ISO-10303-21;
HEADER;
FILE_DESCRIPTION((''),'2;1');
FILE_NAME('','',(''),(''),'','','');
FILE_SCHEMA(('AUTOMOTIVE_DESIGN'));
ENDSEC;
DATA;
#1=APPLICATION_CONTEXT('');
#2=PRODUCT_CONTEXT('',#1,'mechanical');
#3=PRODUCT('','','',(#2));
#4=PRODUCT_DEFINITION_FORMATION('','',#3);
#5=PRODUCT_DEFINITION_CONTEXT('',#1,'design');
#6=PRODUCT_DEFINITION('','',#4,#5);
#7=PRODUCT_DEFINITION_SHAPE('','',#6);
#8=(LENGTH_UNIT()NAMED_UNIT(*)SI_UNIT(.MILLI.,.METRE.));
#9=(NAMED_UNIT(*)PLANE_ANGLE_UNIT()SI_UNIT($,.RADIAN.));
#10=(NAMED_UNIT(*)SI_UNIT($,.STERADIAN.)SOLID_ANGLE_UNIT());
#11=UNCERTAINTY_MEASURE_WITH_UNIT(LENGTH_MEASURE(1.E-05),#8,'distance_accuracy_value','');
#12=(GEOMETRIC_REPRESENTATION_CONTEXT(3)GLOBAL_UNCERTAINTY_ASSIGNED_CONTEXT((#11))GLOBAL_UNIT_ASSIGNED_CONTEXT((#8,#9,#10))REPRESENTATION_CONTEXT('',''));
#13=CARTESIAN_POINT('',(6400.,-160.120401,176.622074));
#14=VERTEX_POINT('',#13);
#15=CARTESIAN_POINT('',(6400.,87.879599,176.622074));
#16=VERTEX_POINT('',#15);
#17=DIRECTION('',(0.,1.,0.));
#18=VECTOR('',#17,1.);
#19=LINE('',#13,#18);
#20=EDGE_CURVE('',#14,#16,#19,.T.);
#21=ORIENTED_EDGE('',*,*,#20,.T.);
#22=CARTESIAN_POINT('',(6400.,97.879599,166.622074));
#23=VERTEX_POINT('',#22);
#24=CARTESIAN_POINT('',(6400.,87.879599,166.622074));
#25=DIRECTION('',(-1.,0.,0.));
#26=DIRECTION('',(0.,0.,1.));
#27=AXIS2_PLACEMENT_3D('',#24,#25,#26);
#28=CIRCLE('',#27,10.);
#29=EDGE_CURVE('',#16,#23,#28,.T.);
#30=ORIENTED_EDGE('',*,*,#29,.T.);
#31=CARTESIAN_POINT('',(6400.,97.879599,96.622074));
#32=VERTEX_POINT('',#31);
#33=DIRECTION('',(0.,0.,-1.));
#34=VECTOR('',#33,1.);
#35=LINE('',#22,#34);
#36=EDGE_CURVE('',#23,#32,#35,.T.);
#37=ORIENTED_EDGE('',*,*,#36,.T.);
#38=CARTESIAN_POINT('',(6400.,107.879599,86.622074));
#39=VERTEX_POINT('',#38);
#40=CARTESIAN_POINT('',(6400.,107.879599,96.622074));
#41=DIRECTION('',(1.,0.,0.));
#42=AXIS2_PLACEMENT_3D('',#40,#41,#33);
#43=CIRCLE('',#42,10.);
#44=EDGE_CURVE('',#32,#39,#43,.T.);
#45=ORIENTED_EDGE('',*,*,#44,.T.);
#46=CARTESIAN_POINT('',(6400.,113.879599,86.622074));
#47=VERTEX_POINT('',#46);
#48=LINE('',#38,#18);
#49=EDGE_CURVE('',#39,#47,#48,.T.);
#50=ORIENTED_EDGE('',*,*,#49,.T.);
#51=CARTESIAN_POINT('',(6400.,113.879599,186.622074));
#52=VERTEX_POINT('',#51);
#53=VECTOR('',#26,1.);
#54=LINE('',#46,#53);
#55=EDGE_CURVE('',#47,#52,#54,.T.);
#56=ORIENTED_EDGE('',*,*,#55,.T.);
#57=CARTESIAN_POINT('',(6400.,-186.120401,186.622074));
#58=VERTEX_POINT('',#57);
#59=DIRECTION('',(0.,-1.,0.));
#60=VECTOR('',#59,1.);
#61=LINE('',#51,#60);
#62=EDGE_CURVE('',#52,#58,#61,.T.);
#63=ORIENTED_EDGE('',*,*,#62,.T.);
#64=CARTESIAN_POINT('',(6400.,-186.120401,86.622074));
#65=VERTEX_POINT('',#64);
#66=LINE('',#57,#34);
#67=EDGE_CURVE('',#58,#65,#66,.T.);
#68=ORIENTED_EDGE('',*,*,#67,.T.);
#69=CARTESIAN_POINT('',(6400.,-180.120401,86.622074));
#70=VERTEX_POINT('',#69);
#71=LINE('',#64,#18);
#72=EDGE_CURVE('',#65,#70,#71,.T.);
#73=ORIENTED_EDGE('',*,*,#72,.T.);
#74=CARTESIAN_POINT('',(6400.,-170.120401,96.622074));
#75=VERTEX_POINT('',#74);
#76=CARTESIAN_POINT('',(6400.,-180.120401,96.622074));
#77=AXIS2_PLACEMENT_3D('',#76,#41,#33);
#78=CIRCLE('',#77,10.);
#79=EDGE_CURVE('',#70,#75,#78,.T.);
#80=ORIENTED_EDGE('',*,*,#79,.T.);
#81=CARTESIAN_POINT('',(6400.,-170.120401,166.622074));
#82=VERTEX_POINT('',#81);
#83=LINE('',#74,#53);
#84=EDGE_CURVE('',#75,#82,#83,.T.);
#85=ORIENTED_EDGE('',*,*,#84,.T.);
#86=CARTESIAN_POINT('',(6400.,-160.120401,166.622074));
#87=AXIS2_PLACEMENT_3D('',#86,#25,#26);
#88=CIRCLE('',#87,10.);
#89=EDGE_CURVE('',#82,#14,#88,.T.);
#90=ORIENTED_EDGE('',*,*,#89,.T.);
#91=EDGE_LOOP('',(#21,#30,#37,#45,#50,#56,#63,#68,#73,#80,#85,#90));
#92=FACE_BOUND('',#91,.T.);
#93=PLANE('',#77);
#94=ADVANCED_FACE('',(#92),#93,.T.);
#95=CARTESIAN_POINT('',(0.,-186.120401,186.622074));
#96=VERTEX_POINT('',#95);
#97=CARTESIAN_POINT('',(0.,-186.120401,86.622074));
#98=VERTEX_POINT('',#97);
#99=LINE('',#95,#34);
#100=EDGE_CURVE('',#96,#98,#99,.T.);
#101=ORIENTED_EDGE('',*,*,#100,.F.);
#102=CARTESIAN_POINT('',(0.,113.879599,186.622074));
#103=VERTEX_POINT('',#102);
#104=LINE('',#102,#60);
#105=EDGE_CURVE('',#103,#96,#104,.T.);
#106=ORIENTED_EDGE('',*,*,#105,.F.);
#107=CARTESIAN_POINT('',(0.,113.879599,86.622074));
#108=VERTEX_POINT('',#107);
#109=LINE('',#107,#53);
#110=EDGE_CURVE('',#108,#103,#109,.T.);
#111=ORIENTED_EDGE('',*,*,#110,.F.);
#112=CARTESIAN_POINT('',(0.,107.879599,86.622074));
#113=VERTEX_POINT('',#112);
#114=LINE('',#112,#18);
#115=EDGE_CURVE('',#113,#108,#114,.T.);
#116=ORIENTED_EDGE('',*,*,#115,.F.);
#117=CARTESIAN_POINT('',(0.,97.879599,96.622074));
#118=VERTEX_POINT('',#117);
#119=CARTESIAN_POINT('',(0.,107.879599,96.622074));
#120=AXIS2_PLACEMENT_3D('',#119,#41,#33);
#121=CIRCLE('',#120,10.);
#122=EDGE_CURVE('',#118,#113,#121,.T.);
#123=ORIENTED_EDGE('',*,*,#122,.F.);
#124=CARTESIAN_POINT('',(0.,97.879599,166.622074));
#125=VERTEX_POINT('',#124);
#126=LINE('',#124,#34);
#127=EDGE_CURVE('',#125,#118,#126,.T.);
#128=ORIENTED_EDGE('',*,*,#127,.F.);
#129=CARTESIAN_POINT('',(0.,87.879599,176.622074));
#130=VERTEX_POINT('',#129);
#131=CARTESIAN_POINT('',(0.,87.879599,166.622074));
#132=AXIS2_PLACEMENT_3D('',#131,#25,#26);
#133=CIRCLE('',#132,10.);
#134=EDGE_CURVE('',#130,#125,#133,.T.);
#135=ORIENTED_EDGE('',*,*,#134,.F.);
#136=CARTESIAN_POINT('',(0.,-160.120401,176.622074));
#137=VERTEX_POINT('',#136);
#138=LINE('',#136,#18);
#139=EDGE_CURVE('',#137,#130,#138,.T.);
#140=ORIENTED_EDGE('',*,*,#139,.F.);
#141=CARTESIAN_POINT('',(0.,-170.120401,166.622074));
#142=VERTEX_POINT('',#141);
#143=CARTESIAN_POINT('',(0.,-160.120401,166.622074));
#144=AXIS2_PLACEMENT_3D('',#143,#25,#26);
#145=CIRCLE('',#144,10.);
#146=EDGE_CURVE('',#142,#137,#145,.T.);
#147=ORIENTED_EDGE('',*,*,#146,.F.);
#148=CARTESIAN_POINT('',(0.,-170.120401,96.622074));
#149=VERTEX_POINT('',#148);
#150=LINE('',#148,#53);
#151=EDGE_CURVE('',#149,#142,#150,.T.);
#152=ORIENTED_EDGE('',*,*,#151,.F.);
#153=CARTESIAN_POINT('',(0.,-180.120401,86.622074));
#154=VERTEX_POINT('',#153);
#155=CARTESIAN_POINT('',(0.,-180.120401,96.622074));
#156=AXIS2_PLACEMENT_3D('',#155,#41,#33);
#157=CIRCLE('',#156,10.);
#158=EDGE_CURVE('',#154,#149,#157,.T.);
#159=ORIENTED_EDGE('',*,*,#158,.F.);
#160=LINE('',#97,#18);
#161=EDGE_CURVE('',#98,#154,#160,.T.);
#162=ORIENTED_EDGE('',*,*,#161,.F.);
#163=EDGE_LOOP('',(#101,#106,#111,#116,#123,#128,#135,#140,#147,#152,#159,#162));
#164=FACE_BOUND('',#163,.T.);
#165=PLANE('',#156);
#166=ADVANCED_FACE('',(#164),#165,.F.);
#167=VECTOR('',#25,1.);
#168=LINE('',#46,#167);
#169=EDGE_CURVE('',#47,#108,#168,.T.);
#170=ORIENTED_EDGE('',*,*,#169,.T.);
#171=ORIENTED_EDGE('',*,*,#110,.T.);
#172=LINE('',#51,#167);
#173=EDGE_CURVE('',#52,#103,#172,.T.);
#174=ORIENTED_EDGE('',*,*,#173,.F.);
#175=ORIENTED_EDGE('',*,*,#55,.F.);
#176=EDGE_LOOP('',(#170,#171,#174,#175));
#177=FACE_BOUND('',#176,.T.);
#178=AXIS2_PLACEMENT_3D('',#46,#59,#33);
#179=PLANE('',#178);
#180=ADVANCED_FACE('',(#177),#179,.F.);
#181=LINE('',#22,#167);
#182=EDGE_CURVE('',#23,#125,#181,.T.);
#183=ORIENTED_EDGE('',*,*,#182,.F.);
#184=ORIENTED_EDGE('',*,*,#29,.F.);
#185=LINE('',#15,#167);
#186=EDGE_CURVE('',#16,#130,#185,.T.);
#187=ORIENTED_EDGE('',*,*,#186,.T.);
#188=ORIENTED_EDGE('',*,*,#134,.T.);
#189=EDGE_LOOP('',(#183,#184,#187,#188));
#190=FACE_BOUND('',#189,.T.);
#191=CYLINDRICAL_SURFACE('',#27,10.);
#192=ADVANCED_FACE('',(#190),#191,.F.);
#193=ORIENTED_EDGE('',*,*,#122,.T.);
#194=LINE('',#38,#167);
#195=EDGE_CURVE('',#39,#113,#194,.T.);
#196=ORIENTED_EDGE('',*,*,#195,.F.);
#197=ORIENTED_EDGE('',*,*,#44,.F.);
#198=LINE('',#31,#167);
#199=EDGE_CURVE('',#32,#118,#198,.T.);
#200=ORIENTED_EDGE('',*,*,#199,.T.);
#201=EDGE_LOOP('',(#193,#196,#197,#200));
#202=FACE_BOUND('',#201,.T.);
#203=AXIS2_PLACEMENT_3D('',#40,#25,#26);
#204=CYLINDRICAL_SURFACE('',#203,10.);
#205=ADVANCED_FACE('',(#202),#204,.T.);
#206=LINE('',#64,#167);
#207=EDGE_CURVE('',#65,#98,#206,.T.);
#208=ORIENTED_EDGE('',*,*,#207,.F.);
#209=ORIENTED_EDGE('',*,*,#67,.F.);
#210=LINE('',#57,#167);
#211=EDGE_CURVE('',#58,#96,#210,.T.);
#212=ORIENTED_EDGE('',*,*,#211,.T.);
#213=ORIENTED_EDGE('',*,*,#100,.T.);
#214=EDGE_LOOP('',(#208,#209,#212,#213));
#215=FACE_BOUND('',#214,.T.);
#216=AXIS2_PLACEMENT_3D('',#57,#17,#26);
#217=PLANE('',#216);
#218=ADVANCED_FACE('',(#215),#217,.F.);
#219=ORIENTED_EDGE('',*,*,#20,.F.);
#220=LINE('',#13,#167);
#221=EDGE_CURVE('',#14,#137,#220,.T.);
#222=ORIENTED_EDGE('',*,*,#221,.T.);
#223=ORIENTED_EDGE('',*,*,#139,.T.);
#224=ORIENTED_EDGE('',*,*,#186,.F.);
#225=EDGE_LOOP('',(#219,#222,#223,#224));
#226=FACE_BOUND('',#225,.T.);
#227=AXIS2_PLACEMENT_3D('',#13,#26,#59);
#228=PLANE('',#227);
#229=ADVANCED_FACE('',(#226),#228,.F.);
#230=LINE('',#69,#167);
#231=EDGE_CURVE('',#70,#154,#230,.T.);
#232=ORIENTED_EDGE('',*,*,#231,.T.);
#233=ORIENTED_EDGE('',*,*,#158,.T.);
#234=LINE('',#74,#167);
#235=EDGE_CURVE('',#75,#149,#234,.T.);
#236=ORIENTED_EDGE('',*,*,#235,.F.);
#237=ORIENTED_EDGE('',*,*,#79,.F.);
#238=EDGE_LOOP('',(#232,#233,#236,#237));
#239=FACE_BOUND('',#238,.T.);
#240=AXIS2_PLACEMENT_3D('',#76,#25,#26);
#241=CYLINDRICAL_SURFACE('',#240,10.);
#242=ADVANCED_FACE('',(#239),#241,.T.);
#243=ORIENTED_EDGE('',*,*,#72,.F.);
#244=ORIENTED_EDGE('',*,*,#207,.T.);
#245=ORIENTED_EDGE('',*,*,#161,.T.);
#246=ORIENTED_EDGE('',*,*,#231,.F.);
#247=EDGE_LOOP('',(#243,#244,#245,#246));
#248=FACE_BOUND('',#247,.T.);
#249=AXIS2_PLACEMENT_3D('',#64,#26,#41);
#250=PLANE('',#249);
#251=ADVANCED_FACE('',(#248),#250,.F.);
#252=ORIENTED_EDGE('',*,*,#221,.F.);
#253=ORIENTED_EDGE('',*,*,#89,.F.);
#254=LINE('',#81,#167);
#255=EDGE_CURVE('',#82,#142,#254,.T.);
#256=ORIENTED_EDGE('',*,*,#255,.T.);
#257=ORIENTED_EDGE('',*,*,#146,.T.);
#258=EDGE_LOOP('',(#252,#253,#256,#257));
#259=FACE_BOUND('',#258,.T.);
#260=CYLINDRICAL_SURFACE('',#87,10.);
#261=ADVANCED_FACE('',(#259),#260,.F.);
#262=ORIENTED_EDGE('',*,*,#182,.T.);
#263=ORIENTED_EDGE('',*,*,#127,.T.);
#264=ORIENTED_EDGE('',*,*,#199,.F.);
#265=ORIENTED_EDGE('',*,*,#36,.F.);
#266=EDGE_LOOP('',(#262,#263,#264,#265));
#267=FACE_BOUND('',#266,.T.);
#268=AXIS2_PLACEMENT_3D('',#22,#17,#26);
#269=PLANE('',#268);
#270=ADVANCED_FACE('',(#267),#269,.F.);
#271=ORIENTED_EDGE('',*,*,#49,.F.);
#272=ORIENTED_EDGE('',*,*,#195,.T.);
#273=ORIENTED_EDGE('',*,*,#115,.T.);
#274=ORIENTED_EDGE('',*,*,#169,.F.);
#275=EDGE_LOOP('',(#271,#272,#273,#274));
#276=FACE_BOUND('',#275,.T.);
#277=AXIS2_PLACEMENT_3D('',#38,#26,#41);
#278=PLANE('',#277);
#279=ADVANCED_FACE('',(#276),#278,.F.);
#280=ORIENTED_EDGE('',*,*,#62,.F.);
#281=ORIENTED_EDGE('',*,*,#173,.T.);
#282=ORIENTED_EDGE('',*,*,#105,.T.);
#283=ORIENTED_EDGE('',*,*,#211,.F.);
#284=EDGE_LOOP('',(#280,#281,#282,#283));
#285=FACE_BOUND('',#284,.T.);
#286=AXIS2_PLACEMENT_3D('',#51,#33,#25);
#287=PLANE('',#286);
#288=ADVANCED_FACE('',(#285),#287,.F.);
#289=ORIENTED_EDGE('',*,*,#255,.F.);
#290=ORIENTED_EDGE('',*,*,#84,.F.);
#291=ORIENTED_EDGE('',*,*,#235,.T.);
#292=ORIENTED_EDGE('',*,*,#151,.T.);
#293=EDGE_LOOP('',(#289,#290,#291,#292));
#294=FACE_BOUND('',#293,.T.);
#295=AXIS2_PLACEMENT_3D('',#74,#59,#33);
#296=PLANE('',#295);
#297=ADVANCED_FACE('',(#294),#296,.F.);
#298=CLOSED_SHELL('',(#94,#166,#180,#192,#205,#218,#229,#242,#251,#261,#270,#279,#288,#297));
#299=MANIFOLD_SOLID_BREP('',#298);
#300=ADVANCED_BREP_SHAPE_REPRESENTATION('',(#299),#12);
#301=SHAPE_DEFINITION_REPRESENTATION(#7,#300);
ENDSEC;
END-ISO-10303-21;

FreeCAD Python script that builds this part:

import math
import FreeCAD as App
import Part
import Sketcher
from FreeCAD import Vector
Q = App.Units.Quantity

doc = App.newDocument("Part")
body = doc.addObject("PartDesign::Body", "Body")

# Sketch on YZ plane
sketch1 = doc.addObject("Sketcher::SketchObject", "Sketch")
body.addObject(sketch1)
sketch1.AttachmentSupport = (doc.YZ_Plane, [""])
sketch1.MapMode = "FlatFace"
sketch1.addGeometry(Part.LineSegment(Vector(114, 87, 0), Vector(114, 187, 0)), False)
sketch1.addGeometry(Part.LineSegment(Vector(114, 187, 0), Vector(-186, 187, 0)), False)
sketch1.addGeometry(Part.LineSegment(Vector(-186, 187, 0), Vector(-186, 87, 0)), False)
sketch1.addGeometry(Part.LineSegment(Vector(-186, 87, 0), Vector(-180, 87, 0)), False)
sketch1.addGeometry(Part.ArcOfCircle(Part.Circle(Vector(-180, 97, 0), Vector(0, 0, 1), 10), math.radians(-90), math.radians(0)), False)
sketch1.addGeometry(Part.LineSegment(Vector(-170, 97, 0), Vector(-170, 167, 0)), False)
sketch1.addGeometry(Part.ArcOfCircle(Part.Circle(Vector(-160, 167, 0), Vector(0, 0, 1), 10), math.radians(90), math.radians(180)), False)
sketch1.addGeometry(Part.LineSegment(Vector(-160, 177, 0), Vector(88, 177, 0)), False)
sketch1.addGeometry(Part.ArcOfCircle(Part.Circle(Vector(88, 167, 0), Vector(0, 0, 1), 10), math.radians(0), math.radians(90)), False)
sketch1.addGeometry(Part.LineSegment(Vector(98, 167, 0), Vector(98, 97, 0)), False)
sketch1.addGeometry(Part.ArcOfCircle(Part.Circle(Vector(108, 97, 0), Vector(0, 0, 1), 10), math.radians(180), math.radians(270)), False)
sketch1.addGeometry(Part.LineSegment(Vector(108, 87, 0), Vector(114, 87, 0)), False)
sketch1.addConstraint(Sketcher.Constraint("Coincident", 0, 2, 1, 1))
sketch1.addConstraint(Sketcher.Constraint("Coincident", 1, 2, 2, 1))
sketch1.addConstraint(Sketcher.Constraint("Coincident", 2, 2, 3, 1))
sketch1.addConstraint(Sketcher.Constraint("Tangent", 3, 2, 4, 1))
sketch1.addConstraint(Sketcher.Constraint("Tangent", 4, 2, 5, 1))
sketch1.addConstraint(Sketcher.Constraint("Tangent", 5, 2, 6, 2))
sketch1.addConstraint(Sketcher.Constraint("Tangent", 6, 1, 7, 1))
sketch1.addConstraint(Sketcher.Constraint("Tangent", 7, 2, 8, 2))
sketch1.addConstraint(Sketcher.Constraint("Tangent", 8, 1, 9, 1))
sketch1.addConstraint(Sketcher.Constraint("Tangent", 9, 2, 10, 1))
sketch1.addConstraint(Sketcher.Constraint("Tangent", 10, 2, 11, 1))
sketch1.addConstraint(Sketcher.Constraint("Coincident", 11, 2, 0, 1))
sketch1.addConstraint(Sketcher.Constraint("Vertical", 0))
sketch1.addConstraint(Sketcher.Constraint("Horizontal", 1))
sketch1.addConstraint(Sketcher.Constraint("Vertical", 2))
sketch1.addConstraint(Sketcher.Constraint("Horizontal", 3))
sketch1.addConstraint(Sketcher.Constraint("Vertical", 5))
sketch1.addConstraint(Sketcher.Constraint("Horizontal", 7))
sketch1.addConstraint(Sketcher.Constraint("Vertical", 9))
sketch1.addConstraint(Sketcher.Constraint("Horizontal", 11))
sketch1.addConstraint(Sketcher.Constraint("Equal", 4, 6))
sketch1.addConstraint(Sketcher.Constraint("Equal", 6, 8))
sketch1.addConstraint(Sketcher.Constraint("Equal", 8, 10))
sketch1.addConstraint(Sketcher.Constraint("Horizontal", 4, 3, 10, 3))
sketch1.addConstraint(Sketcher.Constraint("Equal", 3, 11))
sketch1.addConstraint(Sketcher.Constraint("Radius", 4, Q("10 mm")))
sketch1.addConstraint(Sketcher.Constraint("DistanceX", 1, 2, 1, 1, Q("300 mm")))
sketch1.addConstraint(Sketcher.Constraint("DistanceX", 3, 1, 3, 2, Q("6 mm")))
sketch1.addConstraint(Sketcher.Constraint("DistanceY", 0, 1, 0, 2, Q("100 mm")))
sketch1.addConstraint(Sketcher.Constraint("DistanceY", 5, 1, 5, 2, Q("70 mm")))
sketch1.addConstraint(Sketcher.Constraint("DistanceX", 4, 3, -1, 1, Q("180.120401 mm")))
sketch1.addConstraint(Sketcher.Constraint("DistanceY", -1, 1, 4, 3, Q("96.622074 mm")))
pad1 = doc.addObject("PartDesign::Pad", "Pad")
body.addObject(pad1)
pad1.Profile = sketch1
pad1.Length = 6400

doc.recompute()
